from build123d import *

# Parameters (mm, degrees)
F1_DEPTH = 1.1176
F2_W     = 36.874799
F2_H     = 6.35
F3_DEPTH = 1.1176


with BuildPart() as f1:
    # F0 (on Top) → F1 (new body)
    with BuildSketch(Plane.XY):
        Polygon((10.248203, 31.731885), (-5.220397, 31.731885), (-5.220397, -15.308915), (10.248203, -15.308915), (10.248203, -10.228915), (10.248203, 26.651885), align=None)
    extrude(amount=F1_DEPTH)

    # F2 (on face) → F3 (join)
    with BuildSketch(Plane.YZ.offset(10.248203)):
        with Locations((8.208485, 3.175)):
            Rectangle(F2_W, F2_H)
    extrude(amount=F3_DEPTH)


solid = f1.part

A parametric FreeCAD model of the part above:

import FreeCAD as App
import Part
import Sketcher

V = App.Vector
Q = App.Units.Quantity


def add_polygon(sketch, points):
    """Adds a closed chain of lines whose ends are joined by coincident constraints."""
    first, n = sketch.GeometryCount, len(points)
    for a, b in zip(points, points[1:] + points[:1]):
        sketch.addGeometry(Part.LineSegment(App.Vector(*a, 0), App.Vector(*b, 0)), False)
    for i in range(n):
        sketch.addConstraint(Sketcher.Constraint("Coincident", first + i, 2, first + (i + 1) % n, 1))

doc = App.newDocument("Part")
body = doc.addObject("PartDesign::Body", "Body")

sketch1 = body.newObject("Sketcher::SketchObject", "Sketch")
sketch1.AttachmentSupport = (doc.getObject("XY_Plane"), [""])
sketch1.MapMode = "FlatFace"
add_polygon(sketch1, [(10, 32), (-5, 32), (-5, -15), (10, -15)])
sketch1.addConstraint([
    Sketcher.Constraint("Horizontal", 0),
    Sketcher.Constraint("Vertical", 1),
    Sketcher.Constraint("Horizontal", 2),
    Sketcher.Constraint("Vertical", 3),
    Sketcher.Constraint("DistanceX", 0, 2, 0, 1, Q("0.609 in")),
    Sketcher.Constraint("DistanceY", 1, 2, 1, 1, Q("1.852 in")),
    Sketcher.Constraint("DistanceX", 0, 2, -1, 1, 5.220397),
    Sketcher.Constraint("DistanceY", -1, 1, 0, 2, 31.731885),
])
pad1 = body.newObject("PartDesign::Pad", "Pad")
pad1.Profile = sketch1
pad1.Length = Q("0.044 in")

sketch2 = body.newObject("Sketcher::SketchObject", "Sketch001")
sketch2.AttachmentSupport = (doc.getObject("YZ_Plane"), [""])
sketch2.MapMode = "FlatFace"
sketch2.AttachmentOffset = App.Placement(V(0, 0, 10.248203), App.Rotation())
add_polygon(sketch2, [(-10, 6), (-10, 0), (27, 0), (27, 6)])
sketch2.addConstraint([
    Sketcher.Constraint("Vertical", 0),
    Sketcher.Constraint("Horizontal", 1),
    Sketcher.Constraint("Vertical", 2),
    Sketcher.Constraint("Horizontal", 3),
    Sketcher.Constraint("PointOnObject", 0, 2, -1),
    Sketcher.Constraint("DistanceY", 0, 2, 0, 1, Q("0.25 in")),
    Sketcher.Constraint("DistanceX", 1, 1, 1, 2, 36.874799),
    Sketcher.Constraint("DistanceX", 0, 2, -1, 1, 10.228915),
])
pad2 = body.newObject("PartDesign::Pad", "Pad001")
pad2.Profile = sketch2
pad2.Length = Q("0.044 in")

doc.recompute()
